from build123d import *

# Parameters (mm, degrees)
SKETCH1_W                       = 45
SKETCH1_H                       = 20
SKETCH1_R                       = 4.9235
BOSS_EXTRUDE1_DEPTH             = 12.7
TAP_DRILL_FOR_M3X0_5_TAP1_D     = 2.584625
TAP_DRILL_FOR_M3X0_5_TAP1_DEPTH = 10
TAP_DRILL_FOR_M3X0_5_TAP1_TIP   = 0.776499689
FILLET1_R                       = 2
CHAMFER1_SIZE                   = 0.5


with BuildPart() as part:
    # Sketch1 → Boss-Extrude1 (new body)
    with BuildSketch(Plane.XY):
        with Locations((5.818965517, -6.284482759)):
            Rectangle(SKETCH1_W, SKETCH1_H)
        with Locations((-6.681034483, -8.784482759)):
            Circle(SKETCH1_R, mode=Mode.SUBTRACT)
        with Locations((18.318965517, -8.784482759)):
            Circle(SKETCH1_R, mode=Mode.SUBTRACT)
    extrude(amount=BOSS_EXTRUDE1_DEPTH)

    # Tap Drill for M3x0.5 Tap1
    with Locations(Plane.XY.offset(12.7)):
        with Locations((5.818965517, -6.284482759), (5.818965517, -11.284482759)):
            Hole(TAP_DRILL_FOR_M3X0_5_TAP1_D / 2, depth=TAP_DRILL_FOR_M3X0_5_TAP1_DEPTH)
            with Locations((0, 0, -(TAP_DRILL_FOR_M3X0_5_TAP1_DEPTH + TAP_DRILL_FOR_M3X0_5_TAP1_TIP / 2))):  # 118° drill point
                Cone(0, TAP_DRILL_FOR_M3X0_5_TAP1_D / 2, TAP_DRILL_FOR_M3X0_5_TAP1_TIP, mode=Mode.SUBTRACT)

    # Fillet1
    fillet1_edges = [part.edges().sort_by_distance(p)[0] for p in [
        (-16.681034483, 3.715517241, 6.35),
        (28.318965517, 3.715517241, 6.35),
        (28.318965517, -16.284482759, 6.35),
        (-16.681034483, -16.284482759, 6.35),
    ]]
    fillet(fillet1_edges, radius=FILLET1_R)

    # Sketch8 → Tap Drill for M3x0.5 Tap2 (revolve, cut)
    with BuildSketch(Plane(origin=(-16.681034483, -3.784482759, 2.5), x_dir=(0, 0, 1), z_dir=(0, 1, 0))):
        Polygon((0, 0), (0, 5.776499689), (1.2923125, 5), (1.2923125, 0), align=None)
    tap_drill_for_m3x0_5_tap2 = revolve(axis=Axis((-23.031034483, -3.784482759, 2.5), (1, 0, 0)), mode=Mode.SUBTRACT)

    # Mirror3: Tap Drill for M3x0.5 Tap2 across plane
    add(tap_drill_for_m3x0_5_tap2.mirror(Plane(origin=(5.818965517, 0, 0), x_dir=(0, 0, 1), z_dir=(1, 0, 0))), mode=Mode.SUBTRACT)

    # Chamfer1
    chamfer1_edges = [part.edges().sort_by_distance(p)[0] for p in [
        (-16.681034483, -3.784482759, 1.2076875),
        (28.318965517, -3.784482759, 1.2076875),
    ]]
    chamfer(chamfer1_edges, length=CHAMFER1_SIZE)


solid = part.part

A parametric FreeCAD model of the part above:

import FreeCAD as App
import Part
import Sketcher
from FreeCAD import Vector
Q = App.Units.Quantity


def edges_at(feature, points):
    """Names of the edges that pass closest to the given points."""
    edges = feature.Shape.Edges
    near = lambda p: min(range(len(edges)), key=lambda i: edges[i].distToShape(Part.Vertex(*p))[0])
    return sorted({f"Edge{near(p) + 1}" for p in points})

doc = App.newDocument("Part")
body = doc.addObject("PartDesign::Body", "Body")

# Sketch on XY plane
sketch1 = body.newObject("Sketcher::SketchObject", "Sketch")
sketch1.AttachmentSupport = (doc.getObject("XY_Plane"), [""])
sketch1.MapMode = "FlatFace"
sketch1.addGeometry(Part.LineSegment(Vector(-16.7, 3.7, 0), Vector(-16.7, -16.3, 0)), False)
sketch1.addGeometry(Part.LineSegment(Vector(-16.7, -16.3, 0), Vector(28.3, -16.3, 0)), False)
sketch1.addGeometry(Part.LineSegment(Vector(28.3, -16.3, 0), Vector(28.3, 3.7, 0)), False)
sketch1.addGeometry(Part.LineSegment(Vector(28.3, 3.7, 0), Vector(-16.7, 3.7, 0)), False)
sketch1.addGeometry(Part.Circle(Vector(-6.7, -8.8, 0), Vector(0, 0, 1), 4.9), False)
sketch1.addGeometry(Part.Circle(Vector(18.3, -8.8, 0), Vector(0, 0, 1), 4.9), False)
sketch1.addConstraint(Sketcher.Constraint("Coincident", 0, 2, 1, 1))
sketch1.addConstraint(Sketcher.Constraint("Coincident", 1, 2, 2, 1))
sketch1.addConstraint(Sketcher.Constraint("Coincident", 2, 2, 3, 1))
sketch1.addConstraint(Sketcher.Constraint("Coincident", 3, 2, 0, 1))
sketch1.addConstraint(Sketcher.Constraint("Vertical", 0))
sketch1.addConstraint(Sketcher.Constraint("Horizontal", 1))
sketch1.addConstraint(Sketcher.Constraint("Vertical", 2))
sketch1.addConstraint(Sketcher.Constraint("Horizontal", 3))
sketch1.addConstraint(Sketcher.Constraint("Equal", 4, 5))
sketch1.addConstraint(Sketcher.Constraint("Horizontal", 4, 3, 5, 3))
sketch1.addConstraint(Sketcher.Constraint("DistanceX", 1, 1, 1, 2, Q("45 mm")))
sketch1.addConstraint(Sketcher.Constraint("DistanceY", 0, 2, 0, 1, Q("20 mm")))
sketch1.addConstraint(Sketcher.Constraint("Diameter", 4, Q("9.847 mm")))
sketch1.addConstraint(Sketcher.Constraint("DistanceX", 4, 3, 5, 3, Q("25 mm")))
sketch1.addConstraint(Sketcher.Constraint("DistanceX", 0, 2, 4, 3, Q("10 mm")))
sketch1.addConstraint(Sketcher.Constraint("DistanceY", 0, 2, 4, 3, Q("7.5 mm")))
sketch1.addConstraint(Sketcher.Constraint("DistanceX", 4, 3, -1, 1, Q("6.681034 mm")))
sketch1.addConstraint(Sketcher.Constraint("DistanceY", 4, 3, -1, 1, Q("8.784483 mm")))
pad1 = body.newObject("PartDesign::Pad", "Pad")
pad1.Profile = sketch1
pad1.Length = 12.7

# Sketch on XY plane
sketch2 = body.newObject("Sketcher::SketchObject", "Sketch001")
sketch2.AttachmentSupport = (doc.getObject("XY_Plane"), [""])
sketch2.MapMode = "FlatFace"
sketch2.AttachmentOffset = App.Placement(Vector(0, 0, 12.7), App.Rotation())
sketch2.addGeometry(Part.Circle(Vector(5.8, -6.3, 0), Vector(0, 0, 1), 1.3), False)
sketch2.addGeometry(Part.Circle(Vector(5.8, -11.3, 0), Vector(0, 0, 1), 1.3), False)
sketch2.addConstraint(Sketcher.Constraint("Equal", 0, 1))
sketch2.addConstraint(Sketcher.Constraint("Vertical", 0, 3, 1, 3))
sketch2.addConstraint(Sketcher.Constraint("DistanceY", 1, 3, 0, 3, Q("5 mm")))
sketch2.addConstraint(Sketcher.Constraint("Diameter", 0, Q("2.584625 mm")))
sketch2.addConstraint(Sketcher.Constraint("DistanceX", -1, 1, 0, 3, Q("5.818966 mm")))
sketch2.addConstraint(Sketcher.Constraint("DistanceY", 0, 3, -1, 1, Q("6.284483 mm")))
doc.recompute()
hole = body.newObject("PartDesign::Hole", "Hole")
hole.Profile = sketch2
hole.ThreadType = "None"
hole.Diameter = 2.584625
hole.DepthType = "Dimension"
hole.Depth = 10
hole.DrillPoint = "Angled"
hole.DrillPointAngle = 118
doc.recompute()

fillet = body.newObject("PartDesign::Fillet", "Fillet")
fillet.Base = (hole, edges_at(hole, [
    (-16.681, 3.716, 6.35),
    (28.319, 3.716, 6.35),
    (28.319, -16.284, 6.35),
    (-16.681, -16.284, 6.35),
]))
fillet.Radius = 2

# Sketch on XZ plane
sketch3 = body.newObject("Sketcher::SketchObject", "Sketch002")
sketch3.AttachmentSupport = (doc.getObject("XZ_Plane"), [""])
sketch3.MapMode = "FlatFace"
sketch3.AttachmentOffset = App.Placement(Vector(0, 0, 3.784483), App.Rotation())
sketch3.addGeometry(Part.LineSegment(Vector(-10.9, 2.5, 0), Vector(-16.7, 2.5, 0)), False)
sketch3.addGeometry(Part.LineSegment(Vector(-16.7, 2.5, 0), Vector(-16.7, 3.8, 0)), False)
sketch3.addGeometry(Part.LineSegment(Vector(-16.7, 3.8, 0), Vector(-11.7, 3.8, 0)), False)
sketch3.addGeometry(Part.LineSegment(Vector(-11.7, 3.8, 0), Vector(-10.9, 2.5, 0)), False)
sketch3.addGeometry(Part.LineSegment(Vector(-16.7, 2.5, 0), Vector(-10.9, 2.5, 0)), True)  # axis
sketch3.addConstraint(Sketcher.Constraint("Coincident", 0, 2, 1, 1))
sketch3.addConstraint(Sketcher.Constraint("Coincident", 1, 2, 2, 1))
sketch3.addConstraint(Sketcher.Constraint("Coincident", 2, 2, 3, 1))
sketch3.addConstraint(Sketcher.Constraint("Coincident", 3, 2, 0, 1))
sketch3.addConstraint(Sketcher.Constraint("Horizontal", 0))
sketch3.addConstraint(Sketcher.Constraint("Vertical", 1))
sketch3.addConstraint(Sketcher.Constraint("Horizontal", 2))
sketch3.addConstraint(Sketcher.Constraint("Horizontal", 4))
sketch3.addConstraint(Sketcher.Constraint("Coincident", 4, 1, 0, 2))
sketch3.addConstraint(Sketcher.Constraint("Equal", 0, 4))
sketch3.addConstraint(Sketcher.Constraint("DistanceX", 2, 1, 2, 2, Q("5 mm")))
sketch3.addConstraint(Sketcher.Constraint("Angle", 3, Q("-59 deg")))
sketch3.addConstraint(Sketcher.Constraint("DistanceY", -1, 1, 0, 2, Q("2.5 mm")))
sketch3.addConstraint(Sketcher.Constraint("DistanceX", 0, 2, 0, 1, Q("5.7765 mm")))
sketch3.addConstraint(Sketcher.Constraint("DistanceX", 0, 2, -1, 1, Q("16.681034 mm")))
groove = body.newObject("PartDesign::Groove", "Groove")
groove.Profile = sketch3
groove.ReferenceAxis = (sketch3, ["Axis0"])
groove.Angle = 360
doc.recompute()

datumplane = body.newObject("PartDesign::Plane", "DatumPlane")
datumplane.AttachmentSupport = (doc.getObject("YZ_Plane"), [""])
datumplane.MapMode = "FlatFace"
datumplane.AttachmentOffset = App.Placement(Vector(0, 0, 5.818966), App.Rotation())
mirrored = body.newObject("PartDesign::Mirrored", "Mirrored")
mirrored.Originals = [groove]
mirrored.MirrorPlane = (datumplane, [""])
body.Tip = mirrored
doc.recompute()

chamfer = body.newObject("PartDesign::Chamfer", "Chamfer")
chamfer.Base = (mirrored, edges_at(mirrored, [(-16.681, -3.784, 1.208), (28.319, -3.784, 1.208)]))
chamfer.Size = 0.5

doc.recompute()
